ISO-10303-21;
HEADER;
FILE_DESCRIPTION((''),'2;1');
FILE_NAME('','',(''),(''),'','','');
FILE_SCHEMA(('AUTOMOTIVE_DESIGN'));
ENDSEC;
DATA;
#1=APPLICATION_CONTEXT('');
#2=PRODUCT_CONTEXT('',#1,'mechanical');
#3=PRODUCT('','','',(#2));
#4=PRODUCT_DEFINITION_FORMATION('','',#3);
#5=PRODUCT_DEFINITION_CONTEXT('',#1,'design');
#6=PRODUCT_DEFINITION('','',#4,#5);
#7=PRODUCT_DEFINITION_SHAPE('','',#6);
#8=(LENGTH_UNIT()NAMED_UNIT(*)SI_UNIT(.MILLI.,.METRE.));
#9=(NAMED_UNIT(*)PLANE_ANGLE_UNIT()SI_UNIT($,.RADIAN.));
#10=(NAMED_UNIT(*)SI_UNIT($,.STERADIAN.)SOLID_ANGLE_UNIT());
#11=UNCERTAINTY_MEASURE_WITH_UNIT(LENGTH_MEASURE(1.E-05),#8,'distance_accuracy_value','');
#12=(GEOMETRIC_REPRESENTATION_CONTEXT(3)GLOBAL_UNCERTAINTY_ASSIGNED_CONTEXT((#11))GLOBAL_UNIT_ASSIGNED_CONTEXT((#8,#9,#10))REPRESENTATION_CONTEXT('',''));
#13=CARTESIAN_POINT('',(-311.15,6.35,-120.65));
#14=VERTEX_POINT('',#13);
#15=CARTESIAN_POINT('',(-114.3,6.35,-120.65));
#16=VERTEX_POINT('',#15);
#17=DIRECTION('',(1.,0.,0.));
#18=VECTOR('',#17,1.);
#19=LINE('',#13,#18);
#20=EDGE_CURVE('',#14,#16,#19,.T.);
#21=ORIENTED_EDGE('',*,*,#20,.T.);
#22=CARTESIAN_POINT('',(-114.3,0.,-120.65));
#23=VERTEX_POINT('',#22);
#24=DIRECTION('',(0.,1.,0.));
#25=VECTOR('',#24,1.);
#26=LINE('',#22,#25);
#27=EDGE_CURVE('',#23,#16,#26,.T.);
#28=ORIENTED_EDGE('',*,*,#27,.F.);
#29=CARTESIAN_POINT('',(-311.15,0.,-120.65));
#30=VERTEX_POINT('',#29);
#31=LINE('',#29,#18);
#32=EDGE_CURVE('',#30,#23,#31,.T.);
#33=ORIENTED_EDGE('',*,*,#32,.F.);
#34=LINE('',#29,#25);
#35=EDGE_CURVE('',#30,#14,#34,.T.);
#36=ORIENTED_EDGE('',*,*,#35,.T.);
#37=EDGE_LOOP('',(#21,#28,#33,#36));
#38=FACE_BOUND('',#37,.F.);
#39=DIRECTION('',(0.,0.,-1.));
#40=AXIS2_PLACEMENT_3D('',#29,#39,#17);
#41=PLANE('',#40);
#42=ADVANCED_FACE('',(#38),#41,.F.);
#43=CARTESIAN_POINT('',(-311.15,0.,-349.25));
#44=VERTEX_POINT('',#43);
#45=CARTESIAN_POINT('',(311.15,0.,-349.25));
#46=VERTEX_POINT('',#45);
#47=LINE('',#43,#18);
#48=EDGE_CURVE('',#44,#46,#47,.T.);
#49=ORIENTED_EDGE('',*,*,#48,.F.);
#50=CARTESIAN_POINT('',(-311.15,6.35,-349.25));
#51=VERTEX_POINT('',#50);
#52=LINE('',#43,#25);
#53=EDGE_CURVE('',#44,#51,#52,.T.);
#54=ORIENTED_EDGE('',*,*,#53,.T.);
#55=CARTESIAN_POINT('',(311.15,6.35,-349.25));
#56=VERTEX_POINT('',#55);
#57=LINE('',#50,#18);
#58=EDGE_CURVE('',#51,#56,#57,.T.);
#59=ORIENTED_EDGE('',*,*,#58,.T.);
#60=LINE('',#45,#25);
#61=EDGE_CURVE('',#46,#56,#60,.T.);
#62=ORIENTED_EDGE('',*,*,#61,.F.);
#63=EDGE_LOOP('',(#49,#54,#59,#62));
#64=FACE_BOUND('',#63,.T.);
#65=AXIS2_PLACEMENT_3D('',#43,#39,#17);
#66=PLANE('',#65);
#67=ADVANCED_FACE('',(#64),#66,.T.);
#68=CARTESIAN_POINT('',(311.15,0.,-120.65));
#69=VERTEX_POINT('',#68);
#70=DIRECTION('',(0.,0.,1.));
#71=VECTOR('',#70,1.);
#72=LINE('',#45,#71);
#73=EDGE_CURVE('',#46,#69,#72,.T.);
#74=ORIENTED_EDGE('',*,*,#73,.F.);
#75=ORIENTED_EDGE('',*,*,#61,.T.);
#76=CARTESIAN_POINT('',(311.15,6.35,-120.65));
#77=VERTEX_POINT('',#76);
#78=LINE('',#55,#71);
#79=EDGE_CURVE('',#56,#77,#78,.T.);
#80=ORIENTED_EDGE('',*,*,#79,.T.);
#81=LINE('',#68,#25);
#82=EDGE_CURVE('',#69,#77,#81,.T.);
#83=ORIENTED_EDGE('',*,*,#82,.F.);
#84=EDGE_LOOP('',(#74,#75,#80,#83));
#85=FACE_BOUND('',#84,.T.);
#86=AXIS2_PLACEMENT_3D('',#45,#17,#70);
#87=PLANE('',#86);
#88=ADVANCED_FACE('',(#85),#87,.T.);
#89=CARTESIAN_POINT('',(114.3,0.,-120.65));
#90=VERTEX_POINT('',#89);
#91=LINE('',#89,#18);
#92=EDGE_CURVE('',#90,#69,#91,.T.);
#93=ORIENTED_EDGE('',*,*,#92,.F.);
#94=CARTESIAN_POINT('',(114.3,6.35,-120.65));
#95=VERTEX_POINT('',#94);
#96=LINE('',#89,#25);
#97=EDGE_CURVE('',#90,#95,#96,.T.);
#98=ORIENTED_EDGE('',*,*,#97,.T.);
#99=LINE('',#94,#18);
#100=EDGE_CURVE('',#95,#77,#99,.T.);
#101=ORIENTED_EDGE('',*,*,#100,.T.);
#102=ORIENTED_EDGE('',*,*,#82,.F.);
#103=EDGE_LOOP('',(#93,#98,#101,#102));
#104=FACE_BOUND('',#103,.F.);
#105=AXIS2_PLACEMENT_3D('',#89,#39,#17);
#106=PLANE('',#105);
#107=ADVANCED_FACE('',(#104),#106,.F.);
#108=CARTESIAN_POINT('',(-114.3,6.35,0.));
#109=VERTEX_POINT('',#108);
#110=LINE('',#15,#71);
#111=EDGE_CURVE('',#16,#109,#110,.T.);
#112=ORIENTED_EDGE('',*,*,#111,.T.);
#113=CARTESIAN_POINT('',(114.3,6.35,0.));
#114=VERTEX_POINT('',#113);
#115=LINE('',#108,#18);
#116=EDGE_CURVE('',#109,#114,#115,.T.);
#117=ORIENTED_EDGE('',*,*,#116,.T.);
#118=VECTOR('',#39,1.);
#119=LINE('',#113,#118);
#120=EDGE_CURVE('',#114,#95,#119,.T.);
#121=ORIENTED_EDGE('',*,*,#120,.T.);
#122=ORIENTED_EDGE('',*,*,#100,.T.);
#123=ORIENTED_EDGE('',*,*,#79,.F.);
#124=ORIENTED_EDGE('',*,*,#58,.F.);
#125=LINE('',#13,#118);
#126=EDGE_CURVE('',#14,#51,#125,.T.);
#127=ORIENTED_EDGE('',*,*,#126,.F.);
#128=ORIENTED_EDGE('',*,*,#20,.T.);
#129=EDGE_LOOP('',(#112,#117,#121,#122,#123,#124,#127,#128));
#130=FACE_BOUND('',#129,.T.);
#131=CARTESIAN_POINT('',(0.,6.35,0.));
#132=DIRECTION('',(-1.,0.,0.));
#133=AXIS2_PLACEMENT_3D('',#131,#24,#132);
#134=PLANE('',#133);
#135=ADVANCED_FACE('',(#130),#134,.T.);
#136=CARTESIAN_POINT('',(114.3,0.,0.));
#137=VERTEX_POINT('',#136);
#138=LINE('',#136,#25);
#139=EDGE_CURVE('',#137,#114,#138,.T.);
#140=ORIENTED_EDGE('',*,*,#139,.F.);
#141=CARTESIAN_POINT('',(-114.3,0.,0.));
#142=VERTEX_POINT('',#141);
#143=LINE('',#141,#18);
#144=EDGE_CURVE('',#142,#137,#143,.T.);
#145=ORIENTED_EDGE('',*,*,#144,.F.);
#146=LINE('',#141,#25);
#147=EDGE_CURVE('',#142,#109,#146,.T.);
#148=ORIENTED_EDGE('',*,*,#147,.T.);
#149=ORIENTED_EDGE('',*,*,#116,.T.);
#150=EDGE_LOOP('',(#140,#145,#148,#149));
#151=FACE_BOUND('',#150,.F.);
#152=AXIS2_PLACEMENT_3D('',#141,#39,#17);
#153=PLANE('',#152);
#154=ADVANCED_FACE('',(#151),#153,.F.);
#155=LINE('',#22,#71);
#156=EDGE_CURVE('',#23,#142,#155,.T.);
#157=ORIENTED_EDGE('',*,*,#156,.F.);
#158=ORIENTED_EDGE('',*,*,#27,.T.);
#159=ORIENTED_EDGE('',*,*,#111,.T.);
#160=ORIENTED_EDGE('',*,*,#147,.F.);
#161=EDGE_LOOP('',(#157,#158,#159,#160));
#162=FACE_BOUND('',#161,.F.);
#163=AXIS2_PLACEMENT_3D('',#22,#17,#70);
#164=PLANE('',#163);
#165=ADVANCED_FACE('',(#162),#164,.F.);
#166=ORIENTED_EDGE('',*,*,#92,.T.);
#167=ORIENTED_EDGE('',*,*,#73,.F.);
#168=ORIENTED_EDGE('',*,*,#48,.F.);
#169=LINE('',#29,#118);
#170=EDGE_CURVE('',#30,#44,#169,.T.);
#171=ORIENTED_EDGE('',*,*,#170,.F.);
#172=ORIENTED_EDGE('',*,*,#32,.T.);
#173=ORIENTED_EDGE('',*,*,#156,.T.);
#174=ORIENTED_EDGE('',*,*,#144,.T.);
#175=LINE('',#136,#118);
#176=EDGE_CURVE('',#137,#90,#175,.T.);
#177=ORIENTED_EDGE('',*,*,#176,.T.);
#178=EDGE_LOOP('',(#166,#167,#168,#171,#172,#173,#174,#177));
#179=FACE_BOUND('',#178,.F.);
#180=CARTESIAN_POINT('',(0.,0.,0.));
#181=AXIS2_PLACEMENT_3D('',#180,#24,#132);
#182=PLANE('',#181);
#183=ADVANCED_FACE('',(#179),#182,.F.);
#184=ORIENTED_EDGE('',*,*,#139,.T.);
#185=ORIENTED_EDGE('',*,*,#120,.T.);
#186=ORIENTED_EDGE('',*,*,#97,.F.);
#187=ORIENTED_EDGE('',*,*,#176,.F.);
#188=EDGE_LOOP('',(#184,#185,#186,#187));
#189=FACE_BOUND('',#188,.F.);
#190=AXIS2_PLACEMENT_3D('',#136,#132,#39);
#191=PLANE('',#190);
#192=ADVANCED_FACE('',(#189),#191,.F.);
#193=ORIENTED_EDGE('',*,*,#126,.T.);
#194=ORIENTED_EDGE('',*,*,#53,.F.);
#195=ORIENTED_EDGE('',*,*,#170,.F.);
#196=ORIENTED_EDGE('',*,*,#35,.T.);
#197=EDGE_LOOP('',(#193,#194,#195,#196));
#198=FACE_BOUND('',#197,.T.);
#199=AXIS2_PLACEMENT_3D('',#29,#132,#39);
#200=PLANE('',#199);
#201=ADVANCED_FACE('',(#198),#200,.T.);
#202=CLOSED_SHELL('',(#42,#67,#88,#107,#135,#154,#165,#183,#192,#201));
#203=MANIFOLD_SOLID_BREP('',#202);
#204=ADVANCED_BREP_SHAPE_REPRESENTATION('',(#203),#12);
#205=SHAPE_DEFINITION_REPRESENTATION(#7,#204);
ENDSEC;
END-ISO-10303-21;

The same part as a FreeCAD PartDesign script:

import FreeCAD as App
import Part
import Sketcher
Q = App.Units.Quantity

doc = App.newDocument("Part")
body = doc.addObject("PartDesign::Body", "Body")

sketch1 = body.newObject("Sketcher::SketchObject", "Sketch")
sketch1.AttachmentSupport = (doc.getObject("XZ_Plane"), [""])
sketch1.MapMode = "FlatFace"
sketch1.addGeometry([
    Part.LineSegment(App.Vector(311, -349, 0), App.Vector(-311, -349, 0)),
    Part.LineSegment(App.Vector(-311, -349, 0), App.Vector(-311, -121, 0)),
    Part.LineSegment(App.Vector(-311, -121, 0), App.Vector(-114, -121, 0)),
    Part.LineSegment(App.Vector(-114, -121, 0), App.Vector(-114, 0, 0)),
    Part.LineSegment(App.Vector(-114, 0, 0), App.Vector(114, 0, 0)),
    Part.LineSegment(App.Vector(114, 0, 0), App.Vector(114, -121, 0)),
    Part.LineSegment(App.Vector(114, -121, 0), App.Vector(311, -121, 0)),
    Part.LineSegment(App.Vector(311, -121, 0), App.Vector(311, -349, 0)),
], False)
sketch1.addConstraint([
    Sketcher.Constraint("Coincident", 0, 2, 1, 1),
    Sketcher.Constraint("Coincident", 1, 2, 2, 1),
    Sketcher.Constraint("Coincident", 2, 2, 3, 1),
    Sketcher.Constraint("Coincident", 3, 2, 4, 1),
    Sketcher.Constraint("Coincident", 4, 2, 5, 1),
    Sketcher.Constraint("Coincident", 5, 2, 6, 1),
    Sketcher.Constraint("Coincident", 6, 2, 7, 1),
    Sketcher.Constraint("Coincident", 7, 2, 0, 1),
    Sketcher.Constraint("Horizontal", 0),
    Sketcher.Constraint("Vertical", 1),
    Sketcher.Constraint("Horizontal", 2),
    Sketcher.Constraint("Vertical", 3),
    Sketcher.Constraint("Horizontal", 4),
    Sketcher.Constraint("Vertical", 5),
    Sketcher.Constraint("Horizontal", 6),
    Sketcher.Constraint("Vertical", 7),
    Sketcher.Constraint("Symmetric", 3, 2, 4, 2, -1, 1),
    Sketcher.Constraint("Symmetric", 1, 2, 6, 2, -2),
    Sketcher.Constraint("Equal", 4, 1),
    Sketcher.Constraint("DistanceX", 4, 1, 4, 2, Q("9 in")),
    Sketcher.Constraint("DistanceX", 0, 2, 0, 1, Q("24.5 in")),
    Sketcher.Constraint("DistanceY", 0, 2, -1, 1, Q("13.75 in")),
])
pad1 = body.newObject("PartDesign::Pad", "Pad")
pad1.Profile = sketch1
pad1.Length = Q("0.25 in")
pad1.Reversed = True

doc.recompute()
